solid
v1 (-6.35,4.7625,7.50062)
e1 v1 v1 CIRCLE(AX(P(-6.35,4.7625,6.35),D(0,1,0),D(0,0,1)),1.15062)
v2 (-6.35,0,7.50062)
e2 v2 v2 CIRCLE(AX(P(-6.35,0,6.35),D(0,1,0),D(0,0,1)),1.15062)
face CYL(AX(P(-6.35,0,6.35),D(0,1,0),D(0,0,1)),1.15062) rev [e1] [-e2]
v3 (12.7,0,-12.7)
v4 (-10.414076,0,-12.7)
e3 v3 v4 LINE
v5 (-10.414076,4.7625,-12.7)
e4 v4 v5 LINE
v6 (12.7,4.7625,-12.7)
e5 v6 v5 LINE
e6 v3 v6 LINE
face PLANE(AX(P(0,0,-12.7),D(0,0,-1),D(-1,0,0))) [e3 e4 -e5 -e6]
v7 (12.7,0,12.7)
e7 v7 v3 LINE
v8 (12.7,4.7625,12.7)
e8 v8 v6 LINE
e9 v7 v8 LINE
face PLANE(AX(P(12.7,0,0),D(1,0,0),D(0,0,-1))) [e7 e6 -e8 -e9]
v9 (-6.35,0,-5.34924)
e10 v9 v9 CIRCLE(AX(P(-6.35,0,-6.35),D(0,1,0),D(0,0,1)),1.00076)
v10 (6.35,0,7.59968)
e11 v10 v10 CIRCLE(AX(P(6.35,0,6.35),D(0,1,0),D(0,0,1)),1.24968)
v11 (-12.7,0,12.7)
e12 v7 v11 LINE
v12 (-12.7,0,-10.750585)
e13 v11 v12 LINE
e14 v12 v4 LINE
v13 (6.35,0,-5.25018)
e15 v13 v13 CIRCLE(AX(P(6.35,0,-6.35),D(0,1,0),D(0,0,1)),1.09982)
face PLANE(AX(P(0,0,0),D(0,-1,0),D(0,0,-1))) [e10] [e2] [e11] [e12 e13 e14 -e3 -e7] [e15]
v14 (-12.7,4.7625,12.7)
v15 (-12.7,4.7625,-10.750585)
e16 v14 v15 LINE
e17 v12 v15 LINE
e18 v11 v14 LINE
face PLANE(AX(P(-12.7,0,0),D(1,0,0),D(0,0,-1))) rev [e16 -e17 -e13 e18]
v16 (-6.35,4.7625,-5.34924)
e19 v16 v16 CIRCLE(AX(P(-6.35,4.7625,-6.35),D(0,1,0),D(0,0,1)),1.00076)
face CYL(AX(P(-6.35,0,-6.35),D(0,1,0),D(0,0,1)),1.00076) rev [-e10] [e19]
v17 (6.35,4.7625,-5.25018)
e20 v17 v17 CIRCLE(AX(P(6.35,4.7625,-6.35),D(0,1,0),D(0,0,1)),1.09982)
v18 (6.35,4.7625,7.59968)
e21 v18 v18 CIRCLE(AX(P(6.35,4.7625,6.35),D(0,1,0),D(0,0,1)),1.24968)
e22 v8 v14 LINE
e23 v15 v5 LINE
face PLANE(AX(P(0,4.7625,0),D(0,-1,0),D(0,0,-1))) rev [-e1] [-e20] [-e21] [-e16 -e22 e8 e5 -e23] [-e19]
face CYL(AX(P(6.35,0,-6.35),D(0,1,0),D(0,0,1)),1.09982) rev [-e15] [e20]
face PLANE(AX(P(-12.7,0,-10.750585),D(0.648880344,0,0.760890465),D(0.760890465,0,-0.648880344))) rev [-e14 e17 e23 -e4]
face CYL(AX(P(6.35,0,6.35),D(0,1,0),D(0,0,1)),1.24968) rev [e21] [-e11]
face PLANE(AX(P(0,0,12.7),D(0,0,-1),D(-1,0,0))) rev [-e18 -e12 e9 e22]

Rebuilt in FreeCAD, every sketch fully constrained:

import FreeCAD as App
import Part
import Sketcher
from FreeCAD import Vector
Q = App.Units.Quantity


def add_polygon(sketch, points):
    """Adds a closed chain of lines whose ends are joined by coincident constraints."""
    first, n = sketch.GeometryCount, len(points)
    for a, b in zip(points, points[1:] + points[:1]):
        sketch.addGeometry(Part.LineSegment(App.Vector(*a, 0), App.Vector(*b, 0)), False)
    for i in range(n):
        sketch.addConstraint(Sketcher.Constraint("Coincident", first + i, 2, first + (i + 1) % n, 1))

doc = App.newDocument("Part")
params = doc.addObject("Spreadsheet::Sheet", "Params")
for row, (alias, value) in enumerate([
    ("sketch1_width", "2 in"),
    ("pad1_length", "0.1875 in"),
    ("sketch2_width", "2 in"),
    ("sketch2_width2", "1 in"),
], start=1):
    params.set(f"A{row}", alias)
    params.set(f"B{row}", "=" + value)
    params.setAlias(f"B{row}", alias)

body = doc.addObject("PartDesign::Body", "Body")

sketch1 = body.newObject("Sketcher::SketchObject", "Sketch")
sketch1.AttachmentSupport = (doc.getObject("XZ_Plane"), [""])
sketch1.MapMode = "FlatFace"
add_polygon(sketch1, [(-25, -25), (-25, 25), (25, 25), (25, -25)])
sketch1.addConstraint([
    Sketcher.Constraint("Vertical", 0),
    Sketcher.Constraint("Horizontal", 1),
    Sketcher.Constraint("Vertical", 2),
    Sketcher.Constraint("Horizontal", 3),
    Sketcher.Constraint("Symmetric", 0, 2, 2, 2, -1, 1),
    Sketcher.Constraint("Equal", 3, 0),
    Sketcher.Constraint("DistanceX", 1, 1, 1, 2, Q("2 in")),
])
sketch1.setExpression("Constraints[10]", "Params.sketch1_width")
pad1 = body.newObject("PartDesign::Pad", "Pad")
pad1.Profile = sketch1
pad1.setExpression("Length", "Params.pad1_length")
pad1.Reversed = True

sketch2 = body.newObject("Sketcher::SketchObject", "Sketch001")
sketch2.AttachmentSupport = (doc.getObject("XZ_Plane"), [""])
sketch2.MapMode = "FlatFace"
sketch2.AttachmentOffset = App.Placement(Vector(0, 0, -0.1875 * 25.4), App.Rotation())
add_polygon(sketch2, [(-25.4, -25.4), (-25.4, 25.4), (25.4, 25.4), (25.4, -25.4)])
add_polygon(sketch2, [(12.7, 12.7), (-12.7, 12.7), (-12.7, -12.7), (12.7, -12.7)])
sketch2.addGeometry(Part.Circle(Vector(-6.3, -6.3, 0), Vector(0, 0, 1), 1), False)
sketch2.addGeometry(Part.Circle(Vector(6.3, -6.3, 0), Vector(0, 0, 1), 1.1), False)
sketch2.addGeometry(Part.Circle(Vector(-6.3, 6.3, 0), Vector(0, 0, 1), 1.2), False)
sketch2.addGeometry(Part.Circle(Vector(6.3, 6.3, 0), Vector(0, 0, 1), 1.2), False)
sketch2.addConstraint([
    Sketcher.Constraint("Vertical", 0),
    Sketcher.Constraint("Horizontal", 1),
    Sketcher.Constraint("Vertical", 2),
    Sketcher.Constraint("Horizontal", 3),
    Sketcher.Constraint("Horizontal", 4),
    Sketcher.Constraint("Vertical", 5),
    Sketcher.Constraint("Horizontal", 6),
    Sketcher.Constraint("Vertical", 7),
    Sketcher.Constraint("Symmetric", 9, 3, 10, 3, -1, 1),
    Sketcher.Constraint("Symmetric", 8, 3, 11, 3, -1, 1),
    Sketcher.Constraint("Symmetric", 0, 2, 2, 2, -1, 1),
    Sketcher.Constraint("Symmetric", 4, 2, 6, 2, -1, 1),
    Sketcher.Constraint("Symmetric", 8, 3, 9, 3, -2),
    Sketcher.Constraint("Equal", 3, 0),
    Sketcher.Constraint("Equal", 6, 5),
    Sketcher.Constraint("DistanceX", 1, 1, 1, 2, Q("2 in")),
    Sketcher.Constraint("DistanceX", 4, 2, 4, 1, Q("1 in")),
    Sketcher.Constraint("Diameter", 8, Q("0.0788 in")),
    Sketcher.Constraint("Diameter", 9, Q("0.0866 in")),
    Sketcher.Constraint("Diameter", 10, Q("0.0906 in")),
    Sketcher.Constraint("Diameter", 11, Q("0.0984 in")),
    Sketcher.Constraint("DistanceX", 8, 3, 9, 3, Q("0.5 in")),
    Sketcher.Constraint("DistanceY", 8, 3, 10, 3, Q("0.5 in")),
])
sketch2.setExpression("Constraints[23]", "Params.sketch2_width")
sketch2.setExpression("Constraints[24]", "Params.sketch2_width2")
pocket1 = body.newObject("PartDesign::Pocket", "Pocket")
pocket1.Profile = sketch2
pocket1.Type = "ThroughAll"
pocket1.Reversed = True

sketch3 = body.newObject("Sketcher::SketchObject", "Sketch002")
sketch3.AttachmentSupport = (doc.getObject("XZ_Plane"), [""])
sketch3.MapMode = "FlatFace"
sketch3.AttachmentOffset = App.Placement(Vector(0, 0, -0.1875 * 25.4), App.Rotation())
add_polygon(sketch3, [(-10.4, -12.7), (-12.7, -12.7), (-12.7, -10.8)])
sketch3.addConstraint([
    Sketcher.Constraint("Horizontal", 0),
    Sketcher.Constraint("Vertical", 1),
    Sketcher.Constraint("DistanceX", 0, 2, -1, 1, Q("0.5 in")),
    Sketcher.Constraint("DistanceY", 0, 2, -1, 1, Q("0.5 in")),
    Sketcher.Constraint("DistanceX", 0, 2, 0, 1, 2.285924),
    Sketcher.Constraint("DistanceY", 1, 1, 1, 2, 1.949415),
])
pocket2 = body.newObject("PartDesign::Pocket", "Pocket001")
pocket2.Profile = sketch3
pocket2.Type = "ThroughAll"
pocket2.Reversed = True

doc.recompute()
